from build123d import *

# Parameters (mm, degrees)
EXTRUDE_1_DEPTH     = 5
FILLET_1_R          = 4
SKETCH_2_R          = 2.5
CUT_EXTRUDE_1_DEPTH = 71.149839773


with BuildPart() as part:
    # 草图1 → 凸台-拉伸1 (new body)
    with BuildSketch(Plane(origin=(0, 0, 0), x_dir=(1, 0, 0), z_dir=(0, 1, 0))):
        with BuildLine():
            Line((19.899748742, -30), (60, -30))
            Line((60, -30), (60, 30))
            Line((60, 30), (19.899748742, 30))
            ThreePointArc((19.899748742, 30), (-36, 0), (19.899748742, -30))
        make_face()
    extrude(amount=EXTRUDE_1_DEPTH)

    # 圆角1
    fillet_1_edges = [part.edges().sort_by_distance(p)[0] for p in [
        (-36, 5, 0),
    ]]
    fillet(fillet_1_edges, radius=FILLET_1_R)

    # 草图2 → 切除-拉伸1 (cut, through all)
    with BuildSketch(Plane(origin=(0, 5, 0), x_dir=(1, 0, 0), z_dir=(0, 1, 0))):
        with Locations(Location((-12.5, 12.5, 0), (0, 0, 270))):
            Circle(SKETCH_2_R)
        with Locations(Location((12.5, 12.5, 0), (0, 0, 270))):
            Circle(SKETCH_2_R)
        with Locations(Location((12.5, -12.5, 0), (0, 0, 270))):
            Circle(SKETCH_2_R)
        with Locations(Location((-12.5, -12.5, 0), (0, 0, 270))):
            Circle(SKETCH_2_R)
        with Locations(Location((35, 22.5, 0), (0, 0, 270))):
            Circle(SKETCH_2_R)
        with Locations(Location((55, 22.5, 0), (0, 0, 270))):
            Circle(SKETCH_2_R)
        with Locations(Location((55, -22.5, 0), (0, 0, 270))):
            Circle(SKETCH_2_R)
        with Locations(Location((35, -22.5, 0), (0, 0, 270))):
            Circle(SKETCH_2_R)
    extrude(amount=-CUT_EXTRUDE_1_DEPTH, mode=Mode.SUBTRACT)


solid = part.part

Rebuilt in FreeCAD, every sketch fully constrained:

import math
import FreeCAD as App
import Part
import Sketcher
from FreeCAD import Vector


def edges_at(feature, points):
    """Names of the edges that pass closest to the given points."""
    edges = feature.Shape.Edges
    near = lambda p: min(range(len(edges)), key=lambda i: edges[i].distToShape(Part.Vertex(*p))[0])
    return sorted({f"Edge{near(p) + 1}" for p in points})

doc = App.newDocument("Part")
body = doc.addObject("PartDesign::Body", "Body")

sketch1 = doc.addObject("Sketcher::SketchObject", "Sketch")
body.addObject(sketch1)
sketch1.AttachmentSupport = (doc.XZ_Plane, [""])
sketch1.MapMode = "FlatFace"
sketch1.addGeometry(Part.LineSegment(Vector(19.899749, 30, 0), Vector(60, 30, 0)), False)
sketch1.addGeometry(Part.LineSegment(Vector(60, 30, 0), Vector(60, -30, 0)), False)
sketch1.addGeometry(Part.LineSegment(Vector(60, -30, 0), Vector(19.899749, -30, 0)), False)
sketch1.addGeometry(Part.ArcOfCircle(Part.Circle(Vector(0, 0, 0), Vector(0, 0, 1), 36), math.radians(56.44269), math.radians(303.55731)), False)
sketch1.addConstraint(Sketcher.Constraint("Coincident", 0, 2, 1, 1))
sketch1.addConstraint(Sketcher.Constraint("Coincident", 1, 2, 2, 1))
sketch1.addConstraint(Sketcher.Constraint("Coincident", 2, 2, 3, 2))
sketch1.addConstraint(Sketcher.Constraint("Coincident", 3, 1, 0, 1))
sketch1.addConstraint(Sketcher.Constraint("Horizontal", 0))
sketch1.addConstraint(Sketcher.Constraint("Vertical", 1))
sketch1.addConstraint(Sketcher.Constraint("Horizontal", 2))
sketch1.addConstraint(Sketcher.Constraint("Coincident", 3, 3, -1, 1))
sketch1.addConstraint(Sketcher.Constraint("Vertical", 2, 2, 3, 1))
sketch1.addConstraint(Sketcher.Constraint("Radius", 3, 36.0))
sketch1.addConstraint(Sketcher.Constraint("DistanceY", 1, 2, 1, 1, 60.0))
sketch1.addConstraint(Sketcher.Constraint("DistanceX", -1, 1, 0, 2, 60.0))
pad1 = doc.addObject("PartDesign::Pad", "Pad")
body.addObject(pad1)
pad1.Profile = sketch1
pad1.Length = 5
pad1.Reversed = True
doc.recompute()

fillet = doc.addObject("PartDesign::Fillet", "Fillet")
body.addObject(fillet)
fillet.Base = (pad1, edges_at(pad1, [(-36, 5, 0)]))
fillet.Radius = 4

sketch2 = doc.addObject("Sketcher::SketchObject", "Sketch001")
body.addObject(sketch2)
sketch2.AttachmentSupport = (doc.XZ_Plane, [""])
sketch2.MapMode = "FlatFace"
sketch2.AttachmentOffset = App.Placement(Vector(0, 0, -5), App.Rotation())
sketch2.addGeometry(Part.Circle(Vector(-12.5, -12.5, 0), Vector(0, 0, 1), 2.5), False)
sketch2.addGeometry(Part.Circle(Vector(12.5, -12.5, 0), Vector(0, 0, 1), 2.5), False)
sketch2.addGeometry(Part.Circle(Vector(12.5, 12.5, 0), Vector(0, 0, 1), 2.5), False)
sketch2.addGeometry(Part.Circle(Vector(-12.5, 12.5, 0), Vector(0, 0, 1), 2.5), False)
sketch2.addGeometry(Part.Circle(Vector(35, -22.5, 0), Vector(0, 0, 1), 2.5), False)
sketch2.addGeometry(Part.Circle(Vector(55, -22.5, 0), Vector(0, 0, 1), 2.5), False)
sketch2.addGeometry(Part.Circle(Vector(55, 22.5, 0), Vector(0, 0, 1), 2.5), False)
sketch2.addGeometry(Part.Circle(Vector(35, 22.5, 0), Vector(0, 0, 1), 2.5), False)
sketch2.addConstraint(Sketcher.Constraint("Equal", 0, 1))
sketch2.addConstraint(Sketcher.Constraint("Equal", 1, 2))
sketch2.addConstraint(Sketcher.Constraint("Equal", 2, 3))
sketch2.addConstraint(Sketcher.Constraint("Equal", 3, 4))
sketch2.addConstraint(Sketcher.Constraint("Equal", 4, 5))
sketch2.addConstraint(Sketcher.Constraint("Equal", 5, 6))
sketch2.addConstraint(Sketcher.Constraint("Equal", 6, 7))
sketch2.addConstraint(Sketcher.Constraint("Symmetric", 0, 3, 2, 3, -1, 1))
sketch2.addConstraint(Sketcher.Constraint("Symmetric", 1, 3, 3, 3, -1, 1))
sketch2.addConstraint(Sketcher.Constraint("Symmetric", 0, 3, 1, 3, -2))
sketch2.addConstraint(Sketcher.Constraint("Symmetric", 5, 3, 6, 3, -1))
sketch2.addConstraint(Sketcher.Constraint("Symmetric", 4, 3, 7, 3, -1))
sketch2.addConstraint(Sketcher.Constraint("Horizontal", 4, 3, 5, 3))
sketch2.addConstraint(Sketcher.Constraint("Diameter", 0, 5.0))
sketch2.addConstraint(Sketcher.Constraint("DistanceX", -1, 1, 4, 3, 35.0))
sketch2.addConstraint(Sketcher.Constraint("DistanceX", -1, 1, 5, 3, 55.0))
sketch2.addConstraint(Sketcher.Constraint("DistanceX", 0, 3, 1, 3, 25.0))
sketch2.addConstraint(Sketcher.Constraint("DistanceY", 1, 3, 2, 3, 25.0))
sketch2.addConstraint(Sketcher.Constraint("DistanceY", 4, 3, 1, 3, 10.0))
pocket1 = doc.addObject("PartDesign::Pocket", "Pocket")
body.addObject(pocket1)
pocket1.Profile = sketch2
pocket1.Type = "ThroughAll"
pocket1.Reversed = True

doc.recompute()
